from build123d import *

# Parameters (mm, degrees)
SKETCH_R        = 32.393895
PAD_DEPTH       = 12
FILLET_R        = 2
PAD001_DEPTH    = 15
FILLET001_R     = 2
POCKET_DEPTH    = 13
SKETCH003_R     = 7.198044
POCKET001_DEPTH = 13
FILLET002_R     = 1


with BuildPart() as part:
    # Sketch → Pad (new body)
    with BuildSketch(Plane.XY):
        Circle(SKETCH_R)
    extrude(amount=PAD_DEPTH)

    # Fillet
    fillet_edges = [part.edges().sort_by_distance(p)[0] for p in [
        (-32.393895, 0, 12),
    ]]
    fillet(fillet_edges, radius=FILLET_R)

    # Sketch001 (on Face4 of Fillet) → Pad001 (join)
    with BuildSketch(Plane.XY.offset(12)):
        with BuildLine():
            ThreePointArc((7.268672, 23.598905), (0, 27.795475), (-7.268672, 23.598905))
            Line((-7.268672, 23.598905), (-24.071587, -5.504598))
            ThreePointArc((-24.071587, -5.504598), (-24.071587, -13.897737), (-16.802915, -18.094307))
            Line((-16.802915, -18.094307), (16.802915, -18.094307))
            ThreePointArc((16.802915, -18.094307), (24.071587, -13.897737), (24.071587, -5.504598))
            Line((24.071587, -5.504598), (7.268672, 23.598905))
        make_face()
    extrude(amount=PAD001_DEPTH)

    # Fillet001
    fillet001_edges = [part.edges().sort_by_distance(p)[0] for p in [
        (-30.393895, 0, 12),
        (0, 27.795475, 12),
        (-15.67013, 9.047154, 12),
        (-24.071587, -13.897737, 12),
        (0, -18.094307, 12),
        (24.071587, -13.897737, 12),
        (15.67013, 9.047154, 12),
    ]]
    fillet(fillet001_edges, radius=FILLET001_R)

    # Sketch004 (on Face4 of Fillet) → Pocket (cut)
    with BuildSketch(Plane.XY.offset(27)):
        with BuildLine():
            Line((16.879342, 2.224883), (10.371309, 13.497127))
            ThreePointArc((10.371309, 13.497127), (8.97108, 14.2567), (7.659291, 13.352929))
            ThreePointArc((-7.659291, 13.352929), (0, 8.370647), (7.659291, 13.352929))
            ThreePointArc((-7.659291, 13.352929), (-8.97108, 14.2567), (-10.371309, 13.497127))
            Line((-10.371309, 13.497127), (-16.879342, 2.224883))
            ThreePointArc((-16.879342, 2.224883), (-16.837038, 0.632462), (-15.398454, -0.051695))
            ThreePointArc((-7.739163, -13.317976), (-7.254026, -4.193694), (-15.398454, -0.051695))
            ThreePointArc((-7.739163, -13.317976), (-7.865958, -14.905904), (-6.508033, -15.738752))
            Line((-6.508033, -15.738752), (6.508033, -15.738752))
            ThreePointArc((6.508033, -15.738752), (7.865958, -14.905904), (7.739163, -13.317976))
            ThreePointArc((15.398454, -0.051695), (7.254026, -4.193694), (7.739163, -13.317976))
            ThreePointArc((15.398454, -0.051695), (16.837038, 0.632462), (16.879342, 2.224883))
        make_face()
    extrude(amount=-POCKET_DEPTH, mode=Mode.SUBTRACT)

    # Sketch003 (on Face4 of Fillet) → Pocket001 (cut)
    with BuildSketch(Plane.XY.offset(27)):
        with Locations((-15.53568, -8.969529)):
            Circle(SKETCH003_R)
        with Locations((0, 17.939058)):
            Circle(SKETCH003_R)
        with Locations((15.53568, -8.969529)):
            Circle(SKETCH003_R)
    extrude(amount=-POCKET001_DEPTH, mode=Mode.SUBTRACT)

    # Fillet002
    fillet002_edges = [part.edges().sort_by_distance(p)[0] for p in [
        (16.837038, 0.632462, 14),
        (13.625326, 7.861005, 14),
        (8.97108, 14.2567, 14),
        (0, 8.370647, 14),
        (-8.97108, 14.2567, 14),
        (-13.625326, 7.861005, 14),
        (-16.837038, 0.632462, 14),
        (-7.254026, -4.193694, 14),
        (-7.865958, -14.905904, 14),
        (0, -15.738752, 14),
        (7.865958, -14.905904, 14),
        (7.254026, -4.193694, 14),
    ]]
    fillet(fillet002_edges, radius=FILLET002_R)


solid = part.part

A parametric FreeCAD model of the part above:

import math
import FreeCAD as App
import Part
import Sketcher
Q = App.Units.Quantity


def edges_at(feature, points):
    """Names of the edges that pass closest to the given points."""
    edges = feature.Shape.Edges
    near = lambda p: min(range(len(edges)), key=lambda i: edges[i].distToShape(Part.Vertex(*p))[0])
    return sorted({f"Edge{near(p) + 1}" for p in points})

doc = App.newDocument("Part")
body = doc.addObject("PartDesign::Body", "Body")

sketch1 = body.newObject("Sketcher::SketchObject", "Sketch")
sketch1.AttachmentSupport = (doc.getObject("XY_Plane"), [""])
sketch1.MapMode = "FlatFace"
sketch1.addGeometry(Part.Circle(App.Vector(0, 0, 0), App.Vector(0, 0, 1), 32.393895), False)
sketch1.addConstraint(Sketcher.Constraint("Coincident", 0, 3, -1, 1))
sketch1.addConstraint(Sketcher.Constraint("Diameter", 0, 64.78779))
pad1 = body.newObject("PartDesign::Pad", "Pad")
pad1.Profile = sketch1
pad1.Length = 12
doc.recompute()

fillet = body.newObject("PartDesign::Fillet", "Fillet")
fillet.Base = (pad1, edges_at(pad1, [(-32.394, 0, 12)]))
fillet.Radius = 2

sketch2 = body.newObject("Sketcher::SketchObject", "Sketch001")
sketch2.AttachmentSupport = (doc.getObject("XY_Plane"), [""])
sketch2.MapMode = "FlatFace"
sketch2.AttachmentOffset = App.Placement(App.Vector(0, 0, 12), App.Rotation())
sketch2.addGeometry(Part.ArcOfCircle(Part.Circle(App.Vector(0, 19.402336, 0), App.Vector(0, 0, 1), 8.393139), math.radians(29.999997), math.radians(150.000003)), False)
sketch2.addGeometry(Part.LineSegment(App.Vector(-7.268672, 23.598905, 0), App.Vector(-24.071587, -5.504598, 0)), False)
sketch2.addGeometry(Part.ArcOfCircle(Part.Circle(App.Vector(-16.802915, -9.701168, 0), App.Vector(0, 0, 1), 8.39314), math.radians(150.000002), math.radians(269.999999)), False)
sketch2.addGeometry(Part.LineSegment(App.Vector(-16.802915, -18.094307, 0), App.Vector(16.802915, -18.094307, 0)), False)
sketch2.addGeometry(Part.ArcOfCircle(Part.Circle(App.Vector(16.802915, -9.701168, 0), App.Vector(0, 0, 1), 8.39314), math.radians(-89.999999), math.radians(29.999998)), False)
sketch2.addGeometry(Part.LineSegment(App.Vector(24.071587, -5.504598, 0), App.Vector(7.268672, 23.598905, 0)), False)
sketch2.addConstraint(Sketcher.Constraint("Tangent", 0, 2, 1, 1))
sketch2.addConstraint(Sketcher.Constraint("Tangent", 1, 2, 2, 1))
sketch2.addConstraint(Sketcher.Constraint("Tangent", 2, 2, 3, 1))
sketch2.addConstraint(Sketcher.Constraint("Tangent", 3, 2, 4, 1))
sketch2.addConstraint(Sketcher.Constraint("Tangent", 4, 2, 5, 1))
sketch2.addConstraint(Sketcher.Constraint("Tangent", 5, 2, 0, 1))
sketch2.addConstraint(Sketcher.Constraint("Horizontal", 3))
sketch2.addConstraint(Sketcher.Constraint("Equal", 0, 2))
sketch2.addConstraint(Sketcher.Constraint("Equal", 2, 4))
sketch2.addConstraint(Sketcher.Constraint("Symmetric", 1, 2, 4, 2, -2))
sketch2.addConstraint(Sketcher.Constraint("Angle", 1, Q("-120 deg")))
sketch2.addConstraint(Sketcher.Constraint("Radius", 0, 8.393139))
sketch2.addConstraint(Sketcher.Constraint("DistanceX", 3, 1, 3, 2, 33.60583))
sketch2.addConstraint(Sketcher.Constraint("DistanceY", 4, 2, -1, 1, 5.504598))
pad2 = body.newObject("PartDesign::Pad", "Pad001")
pad2.Profile = sketch2
pad2.Length = 15
doc.recompute()

fillet2 = body.newObject("PartDesign::Fillet", "Fillet001")
fillet2.Base = (pad2, edges_at(pad2, [
    (-30.394, 0, 12),
    (0, 27.795, 12),
    (-15.67, 9.047, 12),
    (-24.072, -13.898, 12),
    (0, -18.094, 12),
    (24.072, -13.898, 12),
    (15.67, 9.047, 12),
]))
fillet2.Radius = 2

sketch3 = body.newObject("Sketcher::SketchObject", "Sketch002")
sketch3.AttachmentSupport = (doc.getObject("XY_Plane"), [""])
sketch3.MapMode = "FlatFace"
sketch3.AttachmentOffset = App.Placement(App.Vector(0, 0, 27), App.Rotation())
sketch3.addGeometry(Part.LineSegment(App.Vector(16.879342, 2.224883, 0), App.Vector(10.371309, 13.497127, 0)), False)
sketch3.addGeometry(Part.ArcOfCircle(Part.Circle(App.Vector(9.051967, 12.735404, 0), App.Vector(0, 0, 1), 1.523445), math.radians(30.000026), math.radians(156.087075)), False)
sketch3.addGeometry(Part.ArcOfCircle(Part.Circle(App.Vector(0, 16.749124, 0), App.Vector(0, 0, 1), 8.378477), math.radians(-156.087092), math.radians(-23.912908)), False)
sketch3.addGeometry(Part.ArcOfCircle(Part.Circle(App.Vector(-9.051967, 12.735404, 0), App.Vector(0, 0, 1), 1.523445), math.radians(23.912925), math.radians(149.999974)), False)
sketch3.addGeometry(Part.LineSegment(App.Vector(-10.371309, 13.497127, 0), App.Vector(-16.879342, 2.224883, 0)), False)
sketch3.addGeometry(Part.ArcOfCircle(Part.Circle(App.Vector(-15.560001, 1.46316, 0), App.Vector(0, 0, 1), 1.523444), math.radians(149.999966), math.radians(276.087119)), False)
sketch3.addGeometry(Part.ArcOfCircle(Part.Circle(App.Vector(-14.51, -8.382933, 0), App.Vector(0, 0, 1), 8.378477), math.radians(-36.087092), math.radians(96.087093)), False)
sketch3.addGeometry(Part.ArcOfCircle(Part.Circle(App.Vector(-6.508033, -14.215307, 0), App.Vector(0, 0, 1), 1.523445), math.radians(143.912892), math.radians(270.000002)), False)
sketch3.addGeometry(Part.LineSegment(App.Vector(-6.508033, -15.738752, 0), App.Vector(6.508033, -15.738752, 0)), False)
sketch3.addGeometry(Part.ArcOfCircle(Part.Circle(App.Vector(6.508033, -14.215307, 0), App.Vector(0, 0, 1), 1.523445), math.radians(-90.000002), math.radians(36.087108)), False)
sketch3.addGeometry(Part.ArcOfCircle(Part.Circle(App.Vector(14.51, -8.382933, 0), App.Vector(0, 0, 1), 8.378477), math.radians(83.912907), math.radians(216.087092)), False)
sketch3.addGeometry(Part.ArcOfCircle(Part.Circle(App.Vector(15.560001, 1.46316, 0), App.Vector(0, 0, 1), 1.523444), math.radians(-96.087119), math.radians(30.000034)), False)
sketch3.addConstraint(Sketcher.Constraint("Tangent", 0, 2, 1, 1))
sketch3.addConstraint(Sketcher.Constraint("Tangent", 1, 2, 2, 2))
sketch3.addConstraint(Sketcher.Constraint("Tangent", 2, 1, 3, 1))
sketch3.addConstraint(Sketcher.Constraint("Tangent", 3, 2, 4, 1))
sketch3.addConstraint(Sketcher.Constraint("Tangent", 4, 2, 5, 1))
sketch3.addConstraint(Sketcher.Constraint("Tangent", 5, 2, 6, 2))
sketch3.addConstraint(Sketcher.Constraint("Tangent", 6, 1, 7, 1))
sketch3.addConstraint(Sketcher.Constraint("Tangent", 7, 2, 8, 1))
sketch3.addConstraint(Sketcher.Constraint("Tangent", 8, 2, 9, 1))
sketch3.addConstraint(Sketcher.Constraint("Tangent", 9, 2, 10, 2))
sketch3.addConstraint(Sketcher.Constraint("Tangent", 10, 1, 11, 1))
sketch3.addConstraint(Sketcher.Constraint("Tangent", 11, 2, 0, 1))
sketch3.addConstraint(Sketcher.Constraint("Horizontal", 8))
sketch3.addConstraint(Sketcher.Constraint("Equal", 1, 3))
sketch3.addConstraint(Sketcher.Constraint("Equal", 3, 5))
sketch3.addConstraint(Sketcher.Constraint("Equal", 2, 6))
sketch3.addConstraint(Sketcher.Constraint("Equal", 5, 7))
sketch3.addConstraint(Sketcher.Constraint("Equal", 7, 9))
sketch3.addConstraint(Sketcher.Constraint("Equal", 6, 10))
sketch3.addConstraint(Sketcher.Constraint("Equal", 9, 11))
sketch3.addConstraint(Sketcher.Constraint("Symmetric", 1, 3, 3, 3, -2))
sketch3.addConstraint(Sketcher.Constraint("Symmetric", 6, 3, 10, 3, -2))
sketch3.addConstraint(Sketcher.Constraint("Horizontal", 5, 3, 11, 3))
sketch3.addConstraint(Sketcher.Constraint("Angle", 0, Q("120 deg")))
sketch3.addConstraint(Sketcher.Constraint("DistanceX", 5, 3, -1, 1, 15.560001))
sketch3.addConstraint(Sketcher.Constraint("DistanceX", 6, 3, -1, 1, 14.51))
sketch3.addConstraint(Sketcher.Constraint("DistanceX", 7, 3, 1, 3, 15.56))
sketch3.addConstraint(Sketcher.Constraint("Radius", 1, 1.523445))
sketch3.addConstraint(Sketcher.Constraint("Radius", 2, 8.378477))
sketch3.addConstraint(Sketcher.Constraint("DistanceY", 1, 2, 0, 2, 0.144198))
sketch3.addConstraint(Sketcher.Constraint("DistanceY", -1, 1, 5, 3, 1.46316))
pocket1 = body.newObject("PartDesign::Pocket", "Pocket")
pocket1.Profile = sketch3
pocket1.Length = 13

sketch4 = body.newObject("Sketcher::SketchObject", "Sketch003")
sketch4.AttachmentSupport = (doc.getObject("XY_Plane"), [""])
sketch4.MapMode = "FlatFace"
sketch4.AttachmentOffset = App.Placement(App.Vector(0, 0, 27), App.Rotation())
sketch4.addGeometry(Part.Circle(App.Vector(-15.53568, -8.969529, 0), App.Vector(0, 0, 1), 7.198044), False)
sketch4.addGeometry(Part.Circle(App.Vector(0, 17.939058, 0), App.Vector(0, 0, 1), 7.198044), False)
sketch4.addGeometry(Part.Circle(App.Vector(15.53568, -8.969529, 0), App.Vector(0, 0, 1), 7.198044), False)
sketch4.addConstraint(Sketcher.Constraint("Equal", 0, 1))
sketch4.addConstraint(Sketcher.Constraint("Equal", 1, 2))
sketch4.addConstraint(Sketcher.Constraint("Symmetric", 0, 3, 2, 3, -2))
sketch4.addConstraint(Sketcher.Constraint("PointOnObject", 1, 3, -2))
sketch4.addConstraint(Sketcher.Constraint("Diameter", 0, 14.396088))
sketch4.addConstraint(Sketcher.Constraint("DistanceX", 0, 3, -1, 1, 15.53568))
sketch4.addConstraint(Sketcher.Constraint("DistanceY", 0, 3, -1, 1, 8.969529))
sketch4.addConstraint(Sketcher.Constraint("DistanceY", -1, 1, 1, 3, 17.939058))
pocket2 = body.newObject("PartDesign::Pocket", "Pocket001")
pocket2.Profile = sketch4
pocket2.Length = 13
doc.recompute()

fillet3 = body.newObject("PartDesign::Fillet", "Fillet002")
fillet3.Base = (pocket2, edges_at(pocket2, [
    (16.837, 0.632, 14),
    (13.625, 7.861, 14),
    (8.971, 14.257, 14),
    (0, 8.371, 14),
    (-8.971, 14.257, 14),
    (-13.625, 7.861, 14),
    (-16.837, 0.632, 14),
    (-7.254, -4.194, 14),
    (-7.866, -14.906, 14),
    (0, -15.739, 14),
    (7.866, -14.906, 14),
    (7.254, -4.194, 14),
]))
fillet3.Radius = 1

doc.recompute()
